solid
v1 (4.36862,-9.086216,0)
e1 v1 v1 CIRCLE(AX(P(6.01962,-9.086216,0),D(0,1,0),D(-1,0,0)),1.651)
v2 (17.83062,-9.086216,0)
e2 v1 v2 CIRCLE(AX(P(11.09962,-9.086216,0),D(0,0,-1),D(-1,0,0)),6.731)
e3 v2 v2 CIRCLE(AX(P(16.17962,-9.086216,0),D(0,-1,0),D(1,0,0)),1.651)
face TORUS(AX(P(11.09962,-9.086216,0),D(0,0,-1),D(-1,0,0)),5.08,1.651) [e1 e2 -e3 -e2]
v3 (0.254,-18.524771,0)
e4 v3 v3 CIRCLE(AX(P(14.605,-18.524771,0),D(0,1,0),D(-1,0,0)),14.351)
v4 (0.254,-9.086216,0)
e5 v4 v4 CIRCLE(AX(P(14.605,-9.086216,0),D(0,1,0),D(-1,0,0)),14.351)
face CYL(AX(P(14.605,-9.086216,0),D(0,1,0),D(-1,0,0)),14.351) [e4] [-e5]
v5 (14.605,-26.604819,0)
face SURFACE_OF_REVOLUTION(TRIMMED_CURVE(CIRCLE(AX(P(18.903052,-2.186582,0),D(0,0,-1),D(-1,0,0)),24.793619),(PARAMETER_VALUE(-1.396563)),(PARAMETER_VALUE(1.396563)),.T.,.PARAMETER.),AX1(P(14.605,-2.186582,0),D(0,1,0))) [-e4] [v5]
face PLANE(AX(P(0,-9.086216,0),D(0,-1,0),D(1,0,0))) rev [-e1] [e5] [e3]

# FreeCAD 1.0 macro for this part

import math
import FreeCAD as App
import Part
import Sketcher
Q = App.Units.Quantity

doc = App.newDocument("Part")
body = doc.addObject("PartDesign::Body", "Body")

# Sketch on XY plane
sketch1 = doc.addObject("Sketcher::SketchObject", "Sketch")
body.addObject(sketch1)
sketch1.AttachmentSupport = (doc.XY_Plane, [""])
sketch1.MapMode = "FlatFace"
sketch1.addGeometry([
    Part.LineSegment(App.Vector(15, -27, 0), App.Vector(15, -9, 0)),
    Part.LineSegment(App.Vector(15, -9, 0), App.Vector(0, -9, 0)),
    Part.LineSegment(App.Vector(0, -9, 0), App.Vector(0, -19, 0)),
    Part.ArcOfCircle(Part.Circle(App.Vector(19, -2, 0), App.Vector(0, 0, 1), 25), math.radians(-139), math.radians(-100)),
], False)
sketch1.addGeometry(Part.LineSegment(App.Vector(15, -2, 0), App.Vector(15, -27, 0)), True)  # axis
sketch1.addConstraint([
    Sketcher.Constraint("Coincident", 0, 2, 1, 1),
    Sketcher.Constraint("Coincident", 1, 2, 2, 1),
    Sketcher.Constraint("Coincident", 2, 2, 3, 1),
    Sketcher.Constraint("Coincident", 3, 2, 0, 1),
    Sketcher.Constraint("Vertical", 0),
    Sketcher.Constraint("Horizontal", 1),
    Sketcher.Constraint("Vertical", 2),
    Sketcher.Constraint("Vertical", 4),
    Sketcher.Constraint("Coincident", 4, 2, 3, 2),
    Sketcher.Constraint("Horizontal", 3, 3, 4, 1),
    Sketcher.Constraint("DistanceX", 1, 2, 1, 1, Q("0.565 in")),
    Sketcher.Constraint("DistanceX", -1, 1, 1, 2, Q("0.01 in")),
    Sketcher.Constraint("Radius", 3, 24.793619),
    Sketcher.Constraint("DistanceY", 0, 1, 0, 2, 17.518603),
    Sketcher.Constraint("DistanceY", 2, 2, 2, 1, 9.438555),
    Sketcher.Constraint("DistanceY", 3, 3, -1, 1, 2.186582),
])
revolution = doc.addObject("PartDesign::Revolution", "Revolution")
body.addObject(revolution)
revolution.Profile = sketch1
revolution.ReferenceAxis = (sketch1, ["Axis0"])
revolution.Angle = 360

# Sketch on XZ plane
sketch2 = doc.addObject("Sketcher::SketchObject", "Sketch001")
body.addObject(sketch2)
sketch2.AttachmentSupport = (doc.XZ_Plane, [""])
sketch2.MapMode = "FlatFace"
sketch2.AttachmentOffset = App.Placement(App.Vector(0, 0, 9.086216), App.Rotation())
sketch2.addGeometry([
    Part.Circle(App.Vector(6, 0, 0), App.Vector(0, 0, 1), 1.7),
    Part.Circle(App.Vector(16.2, 0, 0), App.Vector(0, 0, 1), 1.7),
], False)
sketch2.addConstraint([
    Sketcher.Constraint("Equal", 0, 1),
    Sketcher.Constraint("PointOnObject", 0, 3, -1),
    Sketcher.Constraint("PointOnObject", 1, 3, -1),
    Sketcher.Constraint("Diameter", 0, Q("0.13 in")),
    Sketcher.Constraint("DistanceX", 0, 3, 1, 3, Q("0.4 in")),
    Sketcher.Constraint("DistanceX", -1, 1, 0, 3, 6.01962),
])

# Sketch on XY plane
sketch3 = doc.addObject("Sketcher::SketchObject", "Sketch002")
body.addObject(sketch3)
sketch3.AttachmentSupport = (doc.XY_Plane, [""])
sketch3.MapMode = "FlatFace"
sketch3.addGeometry(Part.ArcOfCircle(Part.Circle(App.Vector(11, -9, 0), App.Vector(0, 0, 1), 5), math.radians(0), math.radians(180)), False)
sketch3.addConstraint([
    Sketcher.Constraint("Radius", 0, Q("0.2 in")),
    Sketcher.Constraint("DistanceX", -1, 1, 0, 3, 11.09962),
    Sketcher.Constraint("DistanceY", 0, 3, -1, 1, 9.086216),
    Sketcher.Constraint("DistanceY", 0, 1, -1, 1, 9.086216),
    Sketcher.Constraint("DistanceY", 0, 2, -1, 1, 9.086216),
])
doc.recompute()

additivepipe = doc.addObject("PartDesign::AdditivePipe", "AdditivePipe")
body.addObject(additivepipe)
additivepipe.Profile = sketch2
additivepipe.Spine = (sketch3, ["Edge1"])

doc.recompute()
